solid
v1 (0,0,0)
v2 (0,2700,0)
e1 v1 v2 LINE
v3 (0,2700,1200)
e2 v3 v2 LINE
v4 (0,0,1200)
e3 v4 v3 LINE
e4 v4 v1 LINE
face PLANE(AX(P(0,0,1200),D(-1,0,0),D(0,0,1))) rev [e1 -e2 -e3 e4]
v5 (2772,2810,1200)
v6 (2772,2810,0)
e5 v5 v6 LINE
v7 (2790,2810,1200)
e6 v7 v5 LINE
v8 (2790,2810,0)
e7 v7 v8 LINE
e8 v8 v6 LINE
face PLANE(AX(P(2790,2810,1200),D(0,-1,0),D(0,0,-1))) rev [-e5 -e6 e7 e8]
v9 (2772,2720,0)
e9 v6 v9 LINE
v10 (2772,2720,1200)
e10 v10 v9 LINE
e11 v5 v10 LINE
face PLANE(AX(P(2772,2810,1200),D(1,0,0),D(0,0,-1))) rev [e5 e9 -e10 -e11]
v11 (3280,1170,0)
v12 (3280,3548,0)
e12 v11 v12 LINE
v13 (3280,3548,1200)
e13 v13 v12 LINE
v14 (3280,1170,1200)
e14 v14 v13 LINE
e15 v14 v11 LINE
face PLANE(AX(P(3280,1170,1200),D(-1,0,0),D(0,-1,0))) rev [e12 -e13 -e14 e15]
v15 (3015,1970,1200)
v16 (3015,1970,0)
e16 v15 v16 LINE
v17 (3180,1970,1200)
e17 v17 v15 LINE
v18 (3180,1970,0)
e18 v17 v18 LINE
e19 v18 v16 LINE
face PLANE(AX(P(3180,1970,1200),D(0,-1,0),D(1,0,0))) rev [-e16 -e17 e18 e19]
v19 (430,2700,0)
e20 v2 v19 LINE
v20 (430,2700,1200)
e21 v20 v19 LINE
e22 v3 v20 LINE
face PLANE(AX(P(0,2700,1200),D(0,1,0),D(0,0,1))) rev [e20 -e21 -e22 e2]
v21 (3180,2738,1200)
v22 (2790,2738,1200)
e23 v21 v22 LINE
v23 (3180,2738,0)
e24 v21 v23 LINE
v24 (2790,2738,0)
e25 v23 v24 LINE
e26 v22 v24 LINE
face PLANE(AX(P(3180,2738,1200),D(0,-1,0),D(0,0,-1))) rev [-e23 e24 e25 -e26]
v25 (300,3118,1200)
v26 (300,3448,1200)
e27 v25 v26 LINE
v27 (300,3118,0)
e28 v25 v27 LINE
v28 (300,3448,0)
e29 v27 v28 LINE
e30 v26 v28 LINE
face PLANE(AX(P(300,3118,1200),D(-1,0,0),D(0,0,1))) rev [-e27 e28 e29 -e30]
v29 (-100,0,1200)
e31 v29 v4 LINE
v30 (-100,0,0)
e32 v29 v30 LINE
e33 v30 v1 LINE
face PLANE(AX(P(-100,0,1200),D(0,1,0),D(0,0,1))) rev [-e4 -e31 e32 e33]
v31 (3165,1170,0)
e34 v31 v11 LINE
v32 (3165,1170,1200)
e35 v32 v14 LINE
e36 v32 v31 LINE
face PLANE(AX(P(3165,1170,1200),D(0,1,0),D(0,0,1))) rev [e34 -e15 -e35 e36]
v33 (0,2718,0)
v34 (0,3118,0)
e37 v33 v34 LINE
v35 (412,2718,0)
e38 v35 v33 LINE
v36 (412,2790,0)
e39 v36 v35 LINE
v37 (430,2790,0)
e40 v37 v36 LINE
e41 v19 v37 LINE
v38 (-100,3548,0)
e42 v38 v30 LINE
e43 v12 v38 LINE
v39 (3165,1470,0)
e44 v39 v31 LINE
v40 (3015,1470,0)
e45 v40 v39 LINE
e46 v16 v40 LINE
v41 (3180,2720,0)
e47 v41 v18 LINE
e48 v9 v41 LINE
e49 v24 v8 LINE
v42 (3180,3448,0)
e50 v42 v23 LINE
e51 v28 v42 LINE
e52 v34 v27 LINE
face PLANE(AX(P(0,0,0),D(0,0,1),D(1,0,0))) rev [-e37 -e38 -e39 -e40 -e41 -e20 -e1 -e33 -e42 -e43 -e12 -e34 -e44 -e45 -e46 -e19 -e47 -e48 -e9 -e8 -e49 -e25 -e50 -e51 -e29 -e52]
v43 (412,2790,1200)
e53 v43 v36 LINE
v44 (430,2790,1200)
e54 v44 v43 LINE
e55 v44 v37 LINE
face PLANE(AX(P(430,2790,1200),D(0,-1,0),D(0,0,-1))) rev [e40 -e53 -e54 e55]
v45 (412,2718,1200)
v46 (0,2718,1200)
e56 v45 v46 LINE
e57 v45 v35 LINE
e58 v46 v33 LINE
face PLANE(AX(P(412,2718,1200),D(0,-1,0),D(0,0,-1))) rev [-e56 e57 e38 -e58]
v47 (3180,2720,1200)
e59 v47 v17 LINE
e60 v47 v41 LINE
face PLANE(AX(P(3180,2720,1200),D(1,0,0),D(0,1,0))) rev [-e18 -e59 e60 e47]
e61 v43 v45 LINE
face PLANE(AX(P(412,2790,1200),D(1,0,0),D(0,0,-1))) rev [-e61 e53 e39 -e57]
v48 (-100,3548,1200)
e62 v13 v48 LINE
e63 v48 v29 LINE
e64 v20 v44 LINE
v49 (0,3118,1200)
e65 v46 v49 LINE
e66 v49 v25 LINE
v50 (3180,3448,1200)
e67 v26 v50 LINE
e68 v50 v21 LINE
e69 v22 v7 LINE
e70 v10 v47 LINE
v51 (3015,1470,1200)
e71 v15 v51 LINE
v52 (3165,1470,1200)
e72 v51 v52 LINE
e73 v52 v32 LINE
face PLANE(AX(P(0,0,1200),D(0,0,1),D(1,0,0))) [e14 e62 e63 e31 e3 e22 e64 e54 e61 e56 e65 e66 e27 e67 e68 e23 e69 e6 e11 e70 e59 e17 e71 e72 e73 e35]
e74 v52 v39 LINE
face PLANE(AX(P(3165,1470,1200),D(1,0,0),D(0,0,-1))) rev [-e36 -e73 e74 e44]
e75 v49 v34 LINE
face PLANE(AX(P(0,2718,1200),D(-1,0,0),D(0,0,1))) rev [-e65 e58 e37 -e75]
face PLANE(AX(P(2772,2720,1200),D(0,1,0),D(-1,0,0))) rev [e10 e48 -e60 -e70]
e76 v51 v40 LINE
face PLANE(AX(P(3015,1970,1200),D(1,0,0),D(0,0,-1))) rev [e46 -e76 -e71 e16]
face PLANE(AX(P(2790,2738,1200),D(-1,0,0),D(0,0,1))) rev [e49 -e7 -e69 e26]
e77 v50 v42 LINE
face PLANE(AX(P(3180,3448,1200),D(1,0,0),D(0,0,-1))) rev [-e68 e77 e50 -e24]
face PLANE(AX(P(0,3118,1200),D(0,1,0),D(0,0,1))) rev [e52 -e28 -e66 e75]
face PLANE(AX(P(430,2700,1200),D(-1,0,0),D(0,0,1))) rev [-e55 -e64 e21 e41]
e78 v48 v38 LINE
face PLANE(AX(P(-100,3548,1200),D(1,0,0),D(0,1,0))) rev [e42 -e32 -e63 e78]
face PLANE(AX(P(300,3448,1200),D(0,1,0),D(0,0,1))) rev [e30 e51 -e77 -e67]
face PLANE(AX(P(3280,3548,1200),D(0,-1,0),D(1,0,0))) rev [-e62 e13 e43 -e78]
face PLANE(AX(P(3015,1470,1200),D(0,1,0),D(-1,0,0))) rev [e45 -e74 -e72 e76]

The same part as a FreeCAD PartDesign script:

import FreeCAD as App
import Part
import Sketcher
from FreeCAD import Vector


def add_polygon(sketch, points):
    """Adds a closed chain of lines whose ends are joined by coincident constraints."""
    first, n = sketch.GeometryCount, len(points)
    for a, b in zip(points, points[1:] + points[:1]):
        sketch.addGeometry(Part.LineSegment(App.Vector(*a, 0), App.Vector(*b, 0)), False)
    for i in range(n):
        sketch.addConstraint(Sketcher.Constraint("Coincident", first + i, 2, first + (i + 1) % n, 1))

doc = App.newDocument("Part")
body = doc.addObject("PartDesign::Body", "Body")

# Sketch on XY plane
sketch1 = doc.addObject("Sketcher::SketchObject", "Sketch")
body.addObject(sketch1)
sketch1.AttachmentSupport = (doc.XY_Plane, [""])
sketch1.MapMode = "FlatFace"
add_polygon(sketch1, [(0, 0), (0, 2700), (430, 2700), (430, 2790), (412, 2790), (412, 2718), (0, 2718), (0, 3118), (300, 3118), (300, 3448), (3180, 3448), (3180, 2738), (2790, 2738), (2790, 2810), (2772, 2810), (2772, 2720), (3180, 2720), (3180, 1970), (3015, 1970), (3015, 1470), (3165, 1470), (3165, 1170), (3280, 1170), (3280, 3548), (-100, 3548), (-100, 0)])  # lines 0-25
sketch1.addConstraint(Sketcher.Constraint("Vertical", 0))
sketch1.addConstraint(Sketcher.Constraint("Horizontal", 1))
sketch1.addConstraint(Sketcher.Constraint("Vertical", 2))
sketch1.addConstraint(Sketcher.Constraint("Horizontal", 3))
sketch1.addConstraint(Sketcher.Constraint("Vertical", 4))
sketch1.addConstraint(Sketcher.Constraint("Horizontal", 5))
sketch1.addConstraint(Sketcher.Constraint("Vertical", 6))
sketch1.addConstraint(Sketcher.Constraint("Horizontal", 7))
sketch1.addConstraint(Sketcher.Constraint("Vertical", 8))
sketch1.addConstraint(Sketcher.Constraint("Horizontal", 9))
sketch1.addConstraint(Sketcher.Constraint("Vertical", 10))
sketch1.addConstraint(Sketcher.Constraint("Horizontal", 11))
sketch1.addConstraint(Sketcher.Constraint("Vertical", 12))
sketch1.addConstraint(Sketcher.Constraint("Horizontal", 13))
sketch1.addConstraint(Sketcher.Constraint("Vertical", 14))
sketch1.addConstraint(Sketcher.Constraint("Horizontal", 15))
sketch1.addConstraint(Sketcher.Constraint("Vertical", 16))
sketch1.addConstraint(Sketcher.Constraint("Horizontal", 17))
sketch1.addConstraint(Sketcher.Constraint("Vertical", 18))
sketch1.addConstraint(Sketcher.Constraint("Horizontal", 19))
sketch1.addConstraint(Sketcher.Constraint("Vertical", 20))
sketch1.addConstraint(Sketcher.Constraint("Horizontal", 21))
sketch1.addConstraint(Sketcher.Constraint("Vertical", 22))
sketch1.addConstraint(Sketcher.Constraint("Horizontal", 23))
sketch1.addConstraint(Sketcher.Constraint("Vertical", 24))
sketch1.addConstraint(Sketcher.Constraint("Horizontal", 25))
sketch1.addConstraint(Sketcher.Constraint("Coincident", 25, 2, -1, 1))
sketch1.addConstraint(Sketcher.Constraint("PointOnObject", 5, 2, -2))
sketch1.addConstraint(Sketcher.Constraint("Vertical", 10, 2, 15, 2))
sketch1.addConstraint(Sketcher.Constraint("Equal", 3, 13))
sketch1.addConstraint(Sketcher.Constraint("Equal", 4, 12))
sketch1.addConstraint(Sketcher.Constraint("Equal", 2, 14))
sketch1.addConstraint(Sketcher.Constraint("Equal", 7, 20))
sketch1.addConstraint(Sketcher.Constraint("DistanceX", 1, 1, 1, 2, 430.0))
sketch1.addConstraint(Sketcher.Constraint("DistanceX", 3, 2, 3, 1, 18.0))
sketch1.addConstraint(Sketcher.Constraint("DistanceX", 7, 1, 7, 2, 300.0))
sketch1.addConstraint(Sketcher.Constraint("DistanceX", 9, 1, 9, 2, 2880.0))
sketch1.addConstraint(Sketcher.Constraint("DistanceX", 11, 2, 11, 1, 390.0))
sketch1.addConstraint(Sketcher.Constraint("DistanceX", 17, 2, 17, 1, 165.0))
sketch1.addConstraint(Sketcher.Constraint("DistanceX", 19, 1, 19, 2, 150.0))
sketch1.addConstraint(Sketcher.Constraint("DistanceX", 21, 1, 21, 2, 115.0))
sketch1.addConstraint(Sketcher.Constraint("DistanceX", 23, 2, 23, 1, 3380.0))
sketch1.addConstraint(Sketcher.Constraint("DistanceY", 0, 1, 0, 2, 2700.0))
sketch1.addConstraint(Sketcher.Constraint("DistanceY", 2, 1, 2, 2, 90.0))
sketch1.addConstraint(Sketcher.Constraint("DistanceY", 4, 2, 4, 1, 72.0))
sketch1.addConstraint(Sketcher.Constraint("DistanceY", 6, 1, 6, 2, 400.0))
sketch1.addConstraint(Sketcher.Constraint("DistanceY", 8, 1, 8, 2, 330.0))
sketch1.addConstraint(Sketcher.Constraint("DistanceY", 10, 2, 10, 1, 710.0))
sketch1.addConstraint(Sketcher.Constraint("DistanceY", 16, 2, 16, 1, 750.0))
sketch1.addConstraint(Sketcher.Constraint("DistanceY", 18, 2, 18, 1, 500.0))
sketch1.addConstraint(Sketcher.Constraint("DistanceY", 22, 1, 22, 2, 2378.0))
pad1 = doc.addObject("PartDesign::Pad", "Pad")
body.addObject(pad1)
pad1.Profile = sketch1
pad1.Length = 1200

doc.recompute()
